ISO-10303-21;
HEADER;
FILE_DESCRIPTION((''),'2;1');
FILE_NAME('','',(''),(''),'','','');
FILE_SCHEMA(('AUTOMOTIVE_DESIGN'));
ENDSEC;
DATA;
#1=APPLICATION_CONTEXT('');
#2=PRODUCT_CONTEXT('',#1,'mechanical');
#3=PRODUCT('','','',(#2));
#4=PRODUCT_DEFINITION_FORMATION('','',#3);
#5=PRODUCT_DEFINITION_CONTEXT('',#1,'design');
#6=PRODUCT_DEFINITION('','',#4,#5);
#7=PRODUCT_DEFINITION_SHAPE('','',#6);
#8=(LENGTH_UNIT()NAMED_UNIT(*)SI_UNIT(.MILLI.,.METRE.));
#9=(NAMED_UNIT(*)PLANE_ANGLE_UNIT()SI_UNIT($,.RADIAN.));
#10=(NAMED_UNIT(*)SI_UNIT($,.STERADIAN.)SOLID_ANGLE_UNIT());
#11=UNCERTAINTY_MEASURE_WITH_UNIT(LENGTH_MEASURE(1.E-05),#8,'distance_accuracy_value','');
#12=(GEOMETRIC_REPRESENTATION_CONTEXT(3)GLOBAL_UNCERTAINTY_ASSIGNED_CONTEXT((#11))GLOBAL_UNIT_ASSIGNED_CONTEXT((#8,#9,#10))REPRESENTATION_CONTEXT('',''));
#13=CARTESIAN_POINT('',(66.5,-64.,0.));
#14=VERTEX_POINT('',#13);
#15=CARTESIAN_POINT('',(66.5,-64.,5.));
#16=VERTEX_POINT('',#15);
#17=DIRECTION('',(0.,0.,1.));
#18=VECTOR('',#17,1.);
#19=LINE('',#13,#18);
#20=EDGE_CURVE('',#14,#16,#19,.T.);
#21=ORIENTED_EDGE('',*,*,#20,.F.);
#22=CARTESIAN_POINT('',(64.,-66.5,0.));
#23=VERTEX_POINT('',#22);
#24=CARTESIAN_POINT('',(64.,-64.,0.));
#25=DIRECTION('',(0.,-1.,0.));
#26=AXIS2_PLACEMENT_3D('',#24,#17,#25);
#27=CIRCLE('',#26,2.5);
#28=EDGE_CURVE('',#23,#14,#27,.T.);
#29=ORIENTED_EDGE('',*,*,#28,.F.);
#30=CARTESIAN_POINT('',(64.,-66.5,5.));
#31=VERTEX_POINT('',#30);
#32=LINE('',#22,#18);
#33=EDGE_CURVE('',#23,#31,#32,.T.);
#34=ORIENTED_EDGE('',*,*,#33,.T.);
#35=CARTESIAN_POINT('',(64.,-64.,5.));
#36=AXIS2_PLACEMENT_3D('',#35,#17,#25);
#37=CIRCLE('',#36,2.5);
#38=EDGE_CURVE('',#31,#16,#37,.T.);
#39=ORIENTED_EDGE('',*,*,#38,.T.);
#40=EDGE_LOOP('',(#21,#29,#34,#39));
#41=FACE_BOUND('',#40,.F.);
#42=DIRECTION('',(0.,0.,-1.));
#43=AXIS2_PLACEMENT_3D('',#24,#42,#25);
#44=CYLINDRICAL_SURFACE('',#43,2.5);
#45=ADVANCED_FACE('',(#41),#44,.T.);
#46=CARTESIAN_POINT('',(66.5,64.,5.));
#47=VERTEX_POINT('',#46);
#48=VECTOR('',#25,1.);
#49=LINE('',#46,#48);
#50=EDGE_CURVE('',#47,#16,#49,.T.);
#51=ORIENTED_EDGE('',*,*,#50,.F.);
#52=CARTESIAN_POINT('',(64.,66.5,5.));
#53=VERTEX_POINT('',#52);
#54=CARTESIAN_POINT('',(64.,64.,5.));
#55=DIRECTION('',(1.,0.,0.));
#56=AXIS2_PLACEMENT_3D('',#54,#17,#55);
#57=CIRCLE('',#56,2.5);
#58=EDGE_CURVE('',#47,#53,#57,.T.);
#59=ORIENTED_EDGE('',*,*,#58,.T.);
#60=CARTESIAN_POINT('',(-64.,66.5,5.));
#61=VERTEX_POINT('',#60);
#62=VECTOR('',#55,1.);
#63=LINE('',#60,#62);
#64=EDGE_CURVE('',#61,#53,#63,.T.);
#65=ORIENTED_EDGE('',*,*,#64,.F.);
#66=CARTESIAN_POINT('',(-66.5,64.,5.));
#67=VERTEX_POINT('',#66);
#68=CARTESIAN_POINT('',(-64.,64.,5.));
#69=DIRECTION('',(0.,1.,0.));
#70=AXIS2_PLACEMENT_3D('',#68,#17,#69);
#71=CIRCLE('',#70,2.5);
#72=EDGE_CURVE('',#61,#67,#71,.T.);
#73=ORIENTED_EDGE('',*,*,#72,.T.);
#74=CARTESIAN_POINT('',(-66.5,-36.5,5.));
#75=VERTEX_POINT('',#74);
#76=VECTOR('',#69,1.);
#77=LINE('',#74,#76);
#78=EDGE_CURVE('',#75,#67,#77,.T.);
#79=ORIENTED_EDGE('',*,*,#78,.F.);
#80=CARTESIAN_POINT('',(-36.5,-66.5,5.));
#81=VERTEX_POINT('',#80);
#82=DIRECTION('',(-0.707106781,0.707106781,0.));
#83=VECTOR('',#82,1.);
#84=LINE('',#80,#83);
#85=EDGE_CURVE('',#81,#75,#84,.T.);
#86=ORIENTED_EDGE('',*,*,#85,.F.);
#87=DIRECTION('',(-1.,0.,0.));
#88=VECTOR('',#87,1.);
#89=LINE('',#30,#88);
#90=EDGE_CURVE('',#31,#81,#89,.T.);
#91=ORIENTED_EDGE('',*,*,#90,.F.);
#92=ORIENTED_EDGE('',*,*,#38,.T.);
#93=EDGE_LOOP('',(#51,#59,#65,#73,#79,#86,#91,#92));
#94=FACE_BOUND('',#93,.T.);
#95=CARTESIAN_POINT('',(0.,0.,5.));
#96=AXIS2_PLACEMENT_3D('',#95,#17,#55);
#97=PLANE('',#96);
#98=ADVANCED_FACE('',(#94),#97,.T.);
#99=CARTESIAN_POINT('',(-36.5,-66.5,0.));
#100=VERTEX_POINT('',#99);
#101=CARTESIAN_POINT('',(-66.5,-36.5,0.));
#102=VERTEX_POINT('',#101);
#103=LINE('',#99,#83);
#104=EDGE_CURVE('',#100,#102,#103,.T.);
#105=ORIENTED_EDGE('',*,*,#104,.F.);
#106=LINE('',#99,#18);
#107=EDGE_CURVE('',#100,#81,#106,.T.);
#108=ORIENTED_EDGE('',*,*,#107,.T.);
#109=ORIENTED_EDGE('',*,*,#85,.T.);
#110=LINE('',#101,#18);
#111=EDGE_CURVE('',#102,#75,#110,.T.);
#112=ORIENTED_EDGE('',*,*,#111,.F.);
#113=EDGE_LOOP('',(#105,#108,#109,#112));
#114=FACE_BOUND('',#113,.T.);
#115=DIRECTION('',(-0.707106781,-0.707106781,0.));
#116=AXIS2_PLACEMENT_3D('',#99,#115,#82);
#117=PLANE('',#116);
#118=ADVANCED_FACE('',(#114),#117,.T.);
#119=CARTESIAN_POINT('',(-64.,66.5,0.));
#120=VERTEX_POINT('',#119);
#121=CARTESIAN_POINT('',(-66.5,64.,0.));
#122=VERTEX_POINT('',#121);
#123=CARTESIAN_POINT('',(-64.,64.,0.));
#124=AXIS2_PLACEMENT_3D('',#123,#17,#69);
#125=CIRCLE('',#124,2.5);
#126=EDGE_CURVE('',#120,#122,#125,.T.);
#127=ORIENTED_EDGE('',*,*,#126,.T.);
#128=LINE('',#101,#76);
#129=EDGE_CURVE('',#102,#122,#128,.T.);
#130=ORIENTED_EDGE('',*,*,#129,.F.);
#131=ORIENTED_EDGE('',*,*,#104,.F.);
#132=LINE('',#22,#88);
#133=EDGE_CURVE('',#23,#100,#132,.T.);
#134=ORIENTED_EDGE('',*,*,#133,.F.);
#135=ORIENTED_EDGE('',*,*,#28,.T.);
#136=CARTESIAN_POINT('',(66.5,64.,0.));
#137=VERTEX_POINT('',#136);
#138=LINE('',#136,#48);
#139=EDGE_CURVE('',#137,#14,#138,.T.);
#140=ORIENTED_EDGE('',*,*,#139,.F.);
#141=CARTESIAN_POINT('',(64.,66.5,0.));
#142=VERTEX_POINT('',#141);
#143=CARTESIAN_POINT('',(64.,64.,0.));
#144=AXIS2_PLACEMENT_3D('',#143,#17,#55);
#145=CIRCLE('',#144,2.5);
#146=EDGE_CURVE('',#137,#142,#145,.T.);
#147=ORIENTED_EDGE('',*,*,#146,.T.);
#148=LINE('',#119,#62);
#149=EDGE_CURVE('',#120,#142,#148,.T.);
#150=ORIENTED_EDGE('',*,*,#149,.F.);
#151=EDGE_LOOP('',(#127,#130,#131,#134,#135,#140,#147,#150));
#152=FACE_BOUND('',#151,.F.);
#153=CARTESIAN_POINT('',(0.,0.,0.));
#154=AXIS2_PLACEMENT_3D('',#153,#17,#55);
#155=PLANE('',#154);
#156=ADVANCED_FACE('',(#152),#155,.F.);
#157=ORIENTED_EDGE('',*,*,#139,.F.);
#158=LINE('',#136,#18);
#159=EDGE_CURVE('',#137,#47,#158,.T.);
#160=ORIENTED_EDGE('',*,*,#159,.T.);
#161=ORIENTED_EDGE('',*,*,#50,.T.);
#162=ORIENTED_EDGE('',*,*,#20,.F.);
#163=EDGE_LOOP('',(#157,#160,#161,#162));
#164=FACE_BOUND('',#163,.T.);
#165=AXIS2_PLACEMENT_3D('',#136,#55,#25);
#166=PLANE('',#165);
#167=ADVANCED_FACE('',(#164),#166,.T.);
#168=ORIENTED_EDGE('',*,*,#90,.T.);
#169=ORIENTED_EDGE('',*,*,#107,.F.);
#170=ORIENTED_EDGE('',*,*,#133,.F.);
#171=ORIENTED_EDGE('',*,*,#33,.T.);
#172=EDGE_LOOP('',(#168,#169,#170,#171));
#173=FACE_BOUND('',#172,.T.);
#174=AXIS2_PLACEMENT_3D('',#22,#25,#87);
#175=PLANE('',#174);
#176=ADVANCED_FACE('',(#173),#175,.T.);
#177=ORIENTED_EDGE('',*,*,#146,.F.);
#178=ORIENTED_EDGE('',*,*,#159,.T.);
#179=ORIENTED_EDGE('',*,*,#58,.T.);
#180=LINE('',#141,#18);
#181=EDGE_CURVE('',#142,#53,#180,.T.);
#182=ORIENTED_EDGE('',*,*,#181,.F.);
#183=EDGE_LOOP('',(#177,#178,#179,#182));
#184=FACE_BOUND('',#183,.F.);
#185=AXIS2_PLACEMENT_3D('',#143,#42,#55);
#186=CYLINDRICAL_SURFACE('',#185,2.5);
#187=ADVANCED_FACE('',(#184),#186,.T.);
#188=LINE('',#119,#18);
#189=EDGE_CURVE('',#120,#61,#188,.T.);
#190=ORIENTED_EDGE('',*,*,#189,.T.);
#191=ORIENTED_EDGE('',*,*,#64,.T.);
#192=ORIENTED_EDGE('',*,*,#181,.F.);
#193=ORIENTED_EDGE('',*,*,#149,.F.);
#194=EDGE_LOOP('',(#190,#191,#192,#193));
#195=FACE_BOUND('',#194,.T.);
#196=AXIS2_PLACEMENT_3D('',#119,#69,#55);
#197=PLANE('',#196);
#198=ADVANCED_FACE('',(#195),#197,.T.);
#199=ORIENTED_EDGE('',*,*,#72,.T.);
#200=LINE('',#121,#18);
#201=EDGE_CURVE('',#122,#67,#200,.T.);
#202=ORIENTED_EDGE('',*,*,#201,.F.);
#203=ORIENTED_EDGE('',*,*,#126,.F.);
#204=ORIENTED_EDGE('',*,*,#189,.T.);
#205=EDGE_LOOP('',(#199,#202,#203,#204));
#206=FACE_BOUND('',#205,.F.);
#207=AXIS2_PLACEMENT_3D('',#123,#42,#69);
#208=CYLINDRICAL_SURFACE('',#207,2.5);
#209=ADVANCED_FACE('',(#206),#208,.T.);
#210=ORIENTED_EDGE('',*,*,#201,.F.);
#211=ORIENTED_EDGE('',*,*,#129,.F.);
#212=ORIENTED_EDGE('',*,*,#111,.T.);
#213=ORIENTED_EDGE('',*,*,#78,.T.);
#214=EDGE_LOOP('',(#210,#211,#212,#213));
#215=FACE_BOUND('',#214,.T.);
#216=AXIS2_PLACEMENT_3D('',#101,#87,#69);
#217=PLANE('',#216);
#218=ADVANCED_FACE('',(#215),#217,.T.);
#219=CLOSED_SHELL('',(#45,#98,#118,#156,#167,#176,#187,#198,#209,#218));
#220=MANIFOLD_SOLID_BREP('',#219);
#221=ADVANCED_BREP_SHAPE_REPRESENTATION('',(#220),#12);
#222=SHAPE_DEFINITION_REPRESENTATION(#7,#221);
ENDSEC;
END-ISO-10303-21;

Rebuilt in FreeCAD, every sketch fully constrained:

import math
import FreeCAD as App
import Part
import Sketcher
from FreeCAD import Vector
Q = App.Units.Quantity

doc = App.newDocument("Part")
body = doc.addObject("PartDesign::Body", "Body")

# Sketch on XY plane
sketch1 = body.newObject("Sketcher::SketchObject", "Sketch")
sketch1.AttachmentSupport = (doc.getObject("XY_Plane"), [""])
sketch1.MapMode = "FlatFace"
sketch1.addGeometry(Part.LineSegment(Vector(64, 66.5, 0), Vector(-64, 66.5, 0)), False)
sketch1.addGeometry(Part.ArcOfCircle(Part.Circle(Vector(-64, 64, 0), Vector(0, 0, 1), 2.5), math.radians(90), math.radians(180)), False)
sketch1.addGeometry(Part.LineSegment(Vector(-66.5, 64, 0), Vector(-66.5, -36.5, 0)), False)
sketch1.addGeometry(Part.LineSegment(Vector(-66.5, -36.5, 0), Vector(-36.5, -66.5, 0)), False)
sketch1.addGeometry(Part.LineSegment(Vector(-36.5, -66.5, 0), Vector(64, -66.5, 0)), False)
sketch1.addGeometry(Part.ArcOfCircle(Part.Circle(Vector(64, -64, 0), Vector(0, 0, 1), 2.5), math.radians(-90), math.radians(0)), False)
sketch1.addGeometry(Part.LineSegment(Vector(66.5, -64, 0), Vector(66.5, 64, 0)), False)
sketch1.addGeometry(Part.ArcOfCircle(Part.Circle(Vector(64, 64, 0), Vector(0, 0, 1), 2.5), math.radians(0), math.radians(90)), False)
sketch1.addConstraint(Sketcher.Constraint("Tangent", 0, 2, 1, 1))
sketch1.addConstraint(Sketcher.Constraint("Tangent", 1, 2, 2, 1))
sketch1.addConstraint(Sketcher.Constraint("Coincident", 2, 2, 3, 1))
sketch1.addConstraint(Sketcher.Constraint("Coincident", 3, 2, 4, 1))
sketch1.addConstraint(Sketcher.Constraint("Tangent", 4, 2, 5, 1))
sketch1.addConstraint(Sketcher.Constraint("Tangent", 5, 2, 6, 1))
sketch1.addConstraint(Sketcher.Constraint("Tangent", 6, 2, 7, 1))
sketch1.addConstraint(Sketcher.Constraint("Tangent", 7, 2, 0, 1))
sketch1.addConstraint(Sketcher.Constraint("Horizontal", 0))
sketch1.addConstraint(Sketcher.Constraint("Vertical", 2))
sketch1.addConstraint(Sketcher.Constraint("Horizontal", 4))
sketch1.addConstraint(Sketcher.Constraint("Vertical", 6))
sketch1.addConstraint(Sketcher.Constraint("Equal", 1, 5))
sketch1.addConstraint(Sketcher.Constraint("Equal", 5, 7))
sketch1.addConstraint(Sketcher.Constraint("Symmetric", 1, 3, 5, 3, -1, 1))
sketch1.addConstraint(Sketcher.Constraint("Equal", 4, 2))
sketch1.addConstraint(Sketcher.Constraint("Equal", 0, 6))
sketch1.addConstraint(Sketcher.Constraint("Radius", 1, Q("2.5 mm")))
sketch1.addConstraint(Sketcher.Constraint("DistanceX", 0, 2, 0, 1, Q("128 mm")))
sketch1.addConstraint(Sketcher.Constraint("DistanceX", 4, 1, 4, 2, Q("100.5 mm")))
pad1 = body.newObject("PartDesign::Pad", "Pad")
pad1.Profile = sketch1
pad1.Length = 5

doc.recompute()
